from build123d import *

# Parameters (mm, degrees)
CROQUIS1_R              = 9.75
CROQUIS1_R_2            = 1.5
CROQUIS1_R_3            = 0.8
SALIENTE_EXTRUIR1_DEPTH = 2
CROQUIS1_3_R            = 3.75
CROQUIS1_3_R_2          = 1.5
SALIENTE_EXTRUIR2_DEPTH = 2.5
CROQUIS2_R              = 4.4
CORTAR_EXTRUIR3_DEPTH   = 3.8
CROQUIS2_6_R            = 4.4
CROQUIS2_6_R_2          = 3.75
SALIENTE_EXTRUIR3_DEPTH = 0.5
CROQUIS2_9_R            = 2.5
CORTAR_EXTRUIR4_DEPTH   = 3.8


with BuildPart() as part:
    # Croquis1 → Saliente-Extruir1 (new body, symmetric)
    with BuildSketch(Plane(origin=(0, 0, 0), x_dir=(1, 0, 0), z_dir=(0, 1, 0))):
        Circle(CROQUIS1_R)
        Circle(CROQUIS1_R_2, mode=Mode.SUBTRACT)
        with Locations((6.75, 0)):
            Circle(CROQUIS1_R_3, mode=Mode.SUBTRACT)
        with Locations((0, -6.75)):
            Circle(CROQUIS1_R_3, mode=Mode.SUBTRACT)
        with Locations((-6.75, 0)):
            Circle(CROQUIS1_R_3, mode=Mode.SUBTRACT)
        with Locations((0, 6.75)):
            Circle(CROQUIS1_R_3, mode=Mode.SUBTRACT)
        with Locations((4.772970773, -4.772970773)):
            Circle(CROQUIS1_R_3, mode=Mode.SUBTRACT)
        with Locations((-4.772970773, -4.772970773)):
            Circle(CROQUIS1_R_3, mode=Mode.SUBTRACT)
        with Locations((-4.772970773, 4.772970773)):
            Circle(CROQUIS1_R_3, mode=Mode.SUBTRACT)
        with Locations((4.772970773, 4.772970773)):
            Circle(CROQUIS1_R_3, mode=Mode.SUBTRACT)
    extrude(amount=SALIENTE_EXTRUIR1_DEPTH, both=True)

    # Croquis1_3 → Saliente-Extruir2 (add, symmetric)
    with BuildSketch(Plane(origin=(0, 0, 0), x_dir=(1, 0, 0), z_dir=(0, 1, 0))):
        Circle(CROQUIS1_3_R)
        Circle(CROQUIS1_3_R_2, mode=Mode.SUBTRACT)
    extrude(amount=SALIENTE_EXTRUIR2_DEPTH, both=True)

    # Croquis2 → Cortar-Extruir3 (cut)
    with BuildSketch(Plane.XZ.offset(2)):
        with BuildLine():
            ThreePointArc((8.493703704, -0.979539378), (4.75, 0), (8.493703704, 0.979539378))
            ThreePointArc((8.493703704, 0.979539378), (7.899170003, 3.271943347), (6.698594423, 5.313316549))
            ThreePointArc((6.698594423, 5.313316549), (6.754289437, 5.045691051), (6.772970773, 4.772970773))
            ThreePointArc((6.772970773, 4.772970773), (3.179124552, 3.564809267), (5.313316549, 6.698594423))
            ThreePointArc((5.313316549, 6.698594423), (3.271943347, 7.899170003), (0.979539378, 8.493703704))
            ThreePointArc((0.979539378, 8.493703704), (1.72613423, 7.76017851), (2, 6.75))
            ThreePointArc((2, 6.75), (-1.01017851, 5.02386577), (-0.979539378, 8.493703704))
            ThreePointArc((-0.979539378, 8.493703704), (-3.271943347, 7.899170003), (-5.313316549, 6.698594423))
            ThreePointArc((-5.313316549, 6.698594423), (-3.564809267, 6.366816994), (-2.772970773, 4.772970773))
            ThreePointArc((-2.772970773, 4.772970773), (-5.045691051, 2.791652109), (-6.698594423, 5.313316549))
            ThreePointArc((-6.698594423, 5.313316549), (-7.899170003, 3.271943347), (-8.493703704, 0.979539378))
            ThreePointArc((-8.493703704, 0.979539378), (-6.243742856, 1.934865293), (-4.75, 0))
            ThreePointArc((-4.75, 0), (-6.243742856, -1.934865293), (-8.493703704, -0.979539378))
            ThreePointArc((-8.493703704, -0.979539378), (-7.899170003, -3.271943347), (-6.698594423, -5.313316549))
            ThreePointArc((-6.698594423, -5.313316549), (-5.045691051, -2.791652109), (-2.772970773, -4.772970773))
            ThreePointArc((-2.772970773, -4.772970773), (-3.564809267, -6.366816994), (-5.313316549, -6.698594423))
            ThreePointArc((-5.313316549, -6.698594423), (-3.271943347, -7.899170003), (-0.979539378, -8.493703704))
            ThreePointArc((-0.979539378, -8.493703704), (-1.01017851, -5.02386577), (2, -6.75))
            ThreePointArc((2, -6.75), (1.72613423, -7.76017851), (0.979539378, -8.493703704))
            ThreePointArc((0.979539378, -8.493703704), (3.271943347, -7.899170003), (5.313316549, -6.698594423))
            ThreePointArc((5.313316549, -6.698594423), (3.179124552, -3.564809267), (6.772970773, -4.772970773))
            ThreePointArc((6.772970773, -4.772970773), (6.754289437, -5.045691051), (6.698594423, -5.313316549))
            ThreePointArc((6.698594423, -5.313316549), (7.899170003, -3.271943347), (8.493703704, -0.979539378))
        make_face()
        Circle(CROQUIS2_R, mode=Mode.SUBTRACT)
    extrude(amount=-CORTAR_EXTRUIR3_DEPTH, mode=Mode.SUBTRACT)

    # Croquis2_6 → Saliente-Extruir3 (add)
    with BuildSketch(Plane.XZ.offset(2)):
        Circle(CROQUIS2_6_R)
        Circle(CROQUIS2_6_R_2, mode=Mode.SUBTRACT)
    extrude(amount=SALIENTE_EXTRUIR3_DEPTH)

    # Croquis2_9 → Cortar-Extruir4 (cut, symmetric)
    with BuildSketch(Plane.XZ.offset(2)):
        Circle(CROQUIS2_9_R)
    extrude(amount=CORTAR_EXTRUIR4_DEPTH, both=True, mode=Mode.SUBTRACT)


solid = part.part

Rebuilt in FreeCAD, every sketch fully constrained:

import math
import FreeCAD as App
import Part
import Sketcher

doc = App.newDocument("Part")
body = doc.addObject("PartDesign::Body", "Body")

# Sketch on XZ plane
sketch1 = body.newObject("Sketcher::SketchObject", "Sketch")
sketch1.AttachmentSupport = (doc.getObject("XZ_Plane"), [""])
sketch1.MapMode = "FlatFace"
sketch1.addGeometry([
    Part.Circle(App.Vector(0, 0, 0), App.Vector(0, 0, 1), 9.75),  # 0
    Part.Circle(App.Vector(-4.772971, 4.772971, 0), App.Vector(0, 0, 1), 0.8),  # 1
    Part.Circle(App.Vector(0, 6.75, 0), App.Vector(0, 0, 1), 0.8),  # 2
    Part.Circle(App.Vector(4.772971, 4.772971, 0), App.Vector(0, 0, 1), 0.8),  # 3
    Part.Circle(App.Vector(-6.75, 0, 0), App.Vector(0, 0, 1), 0.8),  # 4
    Part.Circle(App.Vector(-4.772971, -4.772971, 0), App.Vector(0, 0, 1), 0.8),  # 5
    Part.Circle(App.Vector(0, 0, 0), App.Vector(0, 0, 1), 1.5),  # 6
    Part.Circle(App.Vector(6.75, 0, 0), App.Vector(0, 0, 1), 0.8),  # 7
    Part.Circle(App.Vector(0, -6.75, 0), App.Vector(0, 0, 1), 0.8),  # 8
    Part.Circle(App.Vector(4.772971, -4.772971, 0), App.Vector(0, 0, 1), 0.8),  # 9
], False)
sketch1.addConstraint([
    Sketcher.Constraint("Coincident", 0, 3, -1, 1),
    Sketcher.Constraint("Coincident", 6, 3, -1, 1),
    Sketcher.Constraint("Equal", 1, 2),
    Sketcher.Constraint("Equal", 2, 3),
    Sketcher.Constraint("Equal", 3, 4),
    Sketcher.Constraint("Equal", 4, 5),
    Sketcher.Constraint("Equal", 5, 7),
    Sketcher.Constraint("Equal", 7, 8),
    Sketcher.Constraint("Equal", 8, 9),
    Sketcher.Constraint("Symmetric", 3, 3, 5, 3, -1, 1),
    Sketcher.Constraint("Symmetric", 4, 3, 7, 3, -1, 1),
    Sketcher.Constraint("Symmetric", 2, 3, 8, 3, -1, 1),
    Sketcher.Constraint("Symmetric", 1, 3, 9, 3, -1, 1),
    Sketcher.Constraint("Symmetric", 1, 3, 3, 3, -2),
    Sketcher.Constraint("PointOnObject", 2, 3, -2),
    Sketcher.Constraint("PointOnObject", 4, 3, -1),
    Sketcher.Constraint("Diameter", 6, 3.0),
    Sketcher.Constraint("Diameter", 0, 19.5),
    Sketcher.Constraint("Diameter", 1, 1.6),
    Sketcher.Constraint("DistanceY", -1, 1, 2, 3, 6.75),
    Sketcher.Constraint("DistanceX", 4, 3, -1, 1, 6.75),
    Sketcher.Constraint("DistanceX", 1, 3, -1, 1, 4.772971),
    Sketcher.Constraint("DistanceY", -1, 1, 1, 3, 4.772971),
])
pad1 = body.newObject("PartDesign::Pad", "Pad")
pad1.Profile = sketch1
pad1.Length = 4
pad1.Midplane = True

# Sketch on XZ plane
sketch2 = body.newObject("Sketcher::SketchObject", "Sketch001")
sketch2.AttachmentSupport = (doc.getObject("XZ_Plane"), [""])
sketch2.MapMode = "FlatFace"
sketch2.addGeometry([
    Part.Circle(App.Vector(0, 0, 0), App.Vector(0, 0, 1), 3.75),
    Part.Circle(App.Vector(0, 0, 0), App.Vector(0, 0, 1), 1.5),
], False)
sketch2.addConstraint([
    Sketcher.Constraint("Coincident", 0, 3, -1, 1),
    Sketcher.Constraint("Coincident", 1, 3, -1, 1),
    Sketcher.Constraint("Diameter", 1, 3.0),
    Sketcher.Constraint("Diameter", 0, 7.5),
])
pad2 = body.newObject("PartDesign::Pad", "Pad001")
pad2.Profile = sketch2
pad2.Length = 5
pad2.Midplane = True

# Sketch on XZ plane
sketch3 = body.newObject("Sketcher::SketchObject", "Sketch002")
sketch3.AttachmentSupport = (doc.getObject("XZ_Plane"), [""])
sketch3.MapMode = "FlatFace"
sketch3.AttachmentOffset = App.Placement(App.Vector(0, 0, 2), App.Rotation())
sketch3.addGeometry([
    Part.ArcOfCircle(Part.Circle(App.Vector(6.75, 0, 0), App.Vector(0, 0, 1), 2), math.radians(29.325445), math.radians(330.674555)),  # 0
    Part.ArcOfCircle(Part.Circle(App.Vector(0, 0, 0), App.Vector(0, 0, 1), 8.55), math.radians(6.578594), math.radians(38.421406)),  # 1
    Part.ArcOfCircle(Part.Circle(App.Vector(4.772971, 4.772971, 0), App.Vector(0, 0, 1), 2), math.radians(0), math.radians(15.674555)),  # 2
    Part.ArcOfCircle(Part.Circle(App.Vector(4.772971, 4.772971, 0), App.Vector(0, 0, 1), 2), math.radians(74.325445), math.radians(360)),  # 3
    Part.ArcOfCircle(Part.Circle(App.Vector(0, 0, 0), App.Vector(0, 0, 1), 8.55), math.radians(51.578594), math.radians(83.421406)),  # 4
    Part.ArcOfCircle(Part.Circle(App.Vector(0, 6.75, 0), App.Vector(0, 0, 1), 2), math.radians(0), math.radians(60.674555)),  # 5
    Part.ArcOfCircle(Part.Circle(App.Vector(0, 6.75, 0), App.Vector(0, 0, 1), 2), math.radians(119.325445), math.radians(360)),  # 6
    Part.ArcOfCircle(Part.Circle(App.Vector(0, 0, 0), App.Vector(0, 0, 1), 8.55), math.radians(96.578594), math.radians(128.421406)),  # 7
    Part.ArcOfCircle(Part.Circle(App.Vector(-4.772971, 4.772971, 0), App.Vector(0, 0, 1), 2), math.radians(0), math.radians(105.674555)),  # 8
    Part.ArcOfCircle(Part.Circle(App.Vector(-4.772971, 4.772971, 0), App.Vector(0, 0, 1), 2), math.radians(164.325445), math.radians(360)),  # 9
    Part.ArcOfCircle(Part.Circle(App.Vector(0, 0, 0), App.Vector(0, 0, 1), 8.55), math.radians(141.578594), math.radians(173.421406)),  # 10
    Part.ArcOfCircle(Part.Circle(App.Vector(-6.75, 0, 0), App.Vector(0, 0, 1), 2), math.radians(0), math.radians(150.674555)),  # 11
    Part.ArcOfCircle(Part.Circle(App.Vector(-6.75, 0, 0), App.Vector(0, 0, 1), 2), math.radians(-150.674555), math.radians(0)),  # 12
    Part.ArcOfCircle(Part.Circle(App.Vector(0, 0, 0), App.Vector(0, 0, 1), 8.55), math.radians(-173.421406), math.radians(-141.578594)),  # 13
    Part.ArcOfCircle(Part.Circle(App.Vector(-4.772971, -4.772971, 0), App.Vector(0, 0, 1), 2), math.radians(0), math.radians(195.674555)),  # 14
    Part.ArcOfCircle(Part.Circle(App.Vector(-4.772971, -4.772971, 0), App.Vector(0, 0, 1), 2), math.radians(-105.674555), math.radians(0)),  # 15
    Part.ArcOfCircle(Part.Circle(App.Vector(0, 0, 0), App.Vector(0, 0, 1), 8.55), math.radians(-128.421406), math.radians(-96.578594)),  # 16
    Part.ArcOfCircle(Part.Circle(App.Vector(0, -6.75, 0), App.Vector(0, 0, 1), 2), math.radians(0), math.radians(240.674555)),  # 17
    Part.ArcOfCircle(Part.Circle(App.Vector(0, -6.75, 0), App.Vector(0, 0, 1), 2), math.radians(-60.674555), math.radians(0)),  # 18
    Part.ArcOfCircle(Part.Circle(App.Vector(0, 0, 0), App.Vector(0, 0, 1), 8.55), math.radians(-83.421406), math.radians(-51.578594)),  # 19
    Part.ArcOfCircle(Part.Circle(App.Vector(4.772971, -4.772971, 0), App.Vector(0, 0, 1), 2), math.radians(0), math.radians(285.674555)),  # 20
    Part.ArcOfCircle(Part.Circle(App.Vector(4.772971, -4.772971, 0), App.Vector(0, 0, 1), 2), math.radians(-15.674555), math.radians(0)),  # 21
    Part.ArcOfCircle(Part.Circle(App.Vector(0, 0, 0), App.Vector(0, 0, 1), 8.55), math.radians(-38.421406), math.radians(-6.578594)),  # 22
    Part.Circle(App.Vector(0, 0, 0), App.Vector(0, 0, 1), 4.4),  # 23
], False)
sketch3.addConstraint([
    Sketcher.Constraint("Coincident", 0, 1, 1, 1),
    Sketcher.Constraint("Coincident", 1, 2, 2, 2),
    Sketcher.Constraint("Tangent", 2, 1, 3, 2),
    Sketcher.Constraint("Coincident", 3, 1, 4, 1),
    Sketcher.Constraint("Coincident", 4, 2, 5, 2),
    Sketcher.Constraint("Tangent", 5, 1, 6, 2),
    Sketcher.Constraint("Coincident", 6, 1, 7, 1),
    Sketcher.Constraint("Coincident", 7, 2, 8, 2),
    Sketcher.Constraint("Tangent", 8, 1, 9, 2),
    Sketcher.Constraint("Coincident", 9, 1, 10, 1),
    Sketcher.Constraint("Coincident", 10, 2, 11, 2),
    Sketcher.Constraint("Tangent", 11, 1, 12, 2),
    Sketcher.Constraint("Coincident", 12, 1, 13, 1),
    Sketcher.Constraint("Coincident", 13, 2, 14, 2),
    Sketcher.Constraint("Tangent", 14, 1, 15, 2),
    Sketcher.Constraint("Coincident", 15, 1, 16, 1),
    Sketcher.Constraint("Coincident", 16, 2, 17, 2),
    Sketcher.Constraint("Tangent", 17, 1, 18, 2),
    Sketcher.Constraint("Coincident", 18, 1, 19, 1),
    Sketcher.Constraint("Coincident", 19, 2, 20, 2),
    Sketcher.Constraint("Tangent", 20, 1, 21, 2),
    Sketcher.Constraint("Coincident", 21, 1, 22, 1),
    Sketcher.Constraint("Coincident", 22, 2, 0, 2),
    Sketcher.Constraint("Coincident", 1, 3, -1, 1),
    Sketcher.Constraint("Coincident", 4, 3, -1, 1),
    Sketcher.Constraint("Coincident", 7, 3, -1, 1),
    Sketcher.Constraint("Coincident", 10, 3, -1, 1),
    Sketcher.Constraint("Coincident", 13, 3, -1, 1),
    Sketcher.Constraint("Coincident", 16, 3, -1, 1),
    Sketcher.Constraint("Coincident", 19, 3, -1, 1),
    Sketcher.Constraint("Coincident", 22, 3, -1, 1),
    Sketcher.Constraint("Coincident", 23, 3, -1, 1),
    Sketcher.Constraint("Equal", 0, 2),
    Sketcher.Constraint("Equal", 2, 3),
    Sketcher.Constraint("Equal", 1, 4),
    Sketcher.Constraint("Equal", 3, 5),
    Sketcher.Constraint("Equal", 5, 6),
    Sketcher.Constraint("Equal", 4, 7),
    Sketcher.Constraint("Equal", 6, 8),
    Sketcher.Constraint("Equal", 8, 9),
    Sketcher.Constraint("Equal", 7, 10),
    Sketcher.Constraint("Equal", 9, 11),
    Sketcher.Constraint("Equal", 11, 12),
    Sketcher.Constraint("Equal", 10, 13),
    Sketcher.Constraint("Equal", 12, 14),
    Sketcher.Constraint("Equal", 14, 15),
    Sketcher.Constraint("Equal", 13, 16),
    Sketcher.Constraint("Equal", 15, 17),
    Sketcher.Constraint("Equal", 17, 18),
    Sketcher.Constraint("Equal", 16, 19),
    Sketcher.Constraint("Equal", 18, 20),
    Sketcher.Constraint("Equal", 20, 21),
    Sketcher.Constraint("Equal", 19, 22),
    Sketcher.Constraint("Symmetric", 0, 3, 11, 3, -1, 1),
    Sketcher.Constraint("Symmetric", 2, 3, 14, 3, -1, 1),
    Sketcher.Constraint("Symmetric", 5, 3, 17, 3, -1, 1),
    Sketcher.Constraint("Symmetric", 8, 3, 20, 3, -1, 1),
    Sketcher.Constraint("Symmetric", 2, 3, 8, 3, -2),
    Sketcher.Constraint("Symmetric", 5, 1, 17, 1, -1),
    Sketcher.Constraint("PointOnObject", 0, 3, -1),
    Sketcher.Constraint("PointOnObject", 11, 1, -1),
    Sketcher.Constraint("Horizontal", 9, 3, 2, 1),
    Sketcher.Constraint("Horizontal", 6, 3, 5, 1),
    Sketcher.Constraint("Horizontal", 2, 1, 8, 1),
    Sketcher.Constraint("Horizontal", 21, 3, 14, 1),
    Sketcher.Constraint("Horizontal", 14, 1, 20, 1),
    Sketcher.Constraint("Radius", 0, 2.0),
    Sketcher.Constraint("Diameter", 23, 8.8),
    Sketcher.Constraint("Radius", 1, 8.55),
    Sketcher.Constraint("DistanceX", -1, 1, 0, 3, 6.75),
    Sketcher.Constraint("DistanceY", -1, 1, 5, 3, 6.75),
    Sketcher.Constraint("DistanceX", -1, 1, 2, 3, 4.772971),
    Sketcher.Constraint("DistanceY", -1, 1, 2, 3, 4.772971),
])
pocket1 = body.newObject("PartDesign::Pocket", "Pocket")
pocket1.Profile = sketch3
pocket1.Length = 3.8

# Sketch on XZ plane
sketch4 = body.newObject("Sketcher::SketchObject", "Sketch003")
sketch4.AttachmentSupport = (doc.getObject("XZ_Plane"), [""])
sketch4.MapMode = "FlatFace"
sketch4.AttachmentOffset = App.Placement(App.Vector(0, 0, 2), App.Rotation())
sketch4.addGeometry([
    Part.Circle(App.Vector(0, 0, 0), App.Vector(0, 0, 1), 4.4),
    Part.Circle(App.Vector(0, 0, 0), App.Vector(0, 0, 1), 3.75),
], False)
sketch4.addConstraint([
    Sketcher.Constraint("Coincident", 0, 3, -1, 1),
    Sketcher.Constraint("Coincident", 1, 3, -1, 1),
    Sketcher.Constraint("Diameter", 0, 8.8),
    Sketcher.Constraint("Diameter", 1, 7.5),
])
pad3 = body.newObject("PartDesign::Pad", "Pad002")
pad3.Profile = sketch4
pad3.Length = 0.5

# Sketch on XZ plane
sketch5 = body.newObject("Sketcher::SketchObject", "Sketch004")
sketch5.AttachmentSupport = (doc.getObject("XZ_Plane"), [""])
sketch5.MapMode = "FlatFace"
sketch5.AttachmentOffset = App.Placement(App.Vector(0, 0, 2), App.Rotation())
sketch5.addGeometry(Part.Circle(App.Vector(0, 0, 0), App.Vector(0, 0, 1), 2.5), False)
sketch5.addConstraint([
    Sketcher.Constraint("Coincident", 0, 3, -1, 1),
    Sketcher.Constraint("Diameter", 0, 5.0),
])
pocket2 = body.newObject("PartDesign::Pocket", "Pocket001")
pocket2.Profile = sketch5
pocket2.Length = 7.6
pocket2.Midplane = True

doc.recompute()
